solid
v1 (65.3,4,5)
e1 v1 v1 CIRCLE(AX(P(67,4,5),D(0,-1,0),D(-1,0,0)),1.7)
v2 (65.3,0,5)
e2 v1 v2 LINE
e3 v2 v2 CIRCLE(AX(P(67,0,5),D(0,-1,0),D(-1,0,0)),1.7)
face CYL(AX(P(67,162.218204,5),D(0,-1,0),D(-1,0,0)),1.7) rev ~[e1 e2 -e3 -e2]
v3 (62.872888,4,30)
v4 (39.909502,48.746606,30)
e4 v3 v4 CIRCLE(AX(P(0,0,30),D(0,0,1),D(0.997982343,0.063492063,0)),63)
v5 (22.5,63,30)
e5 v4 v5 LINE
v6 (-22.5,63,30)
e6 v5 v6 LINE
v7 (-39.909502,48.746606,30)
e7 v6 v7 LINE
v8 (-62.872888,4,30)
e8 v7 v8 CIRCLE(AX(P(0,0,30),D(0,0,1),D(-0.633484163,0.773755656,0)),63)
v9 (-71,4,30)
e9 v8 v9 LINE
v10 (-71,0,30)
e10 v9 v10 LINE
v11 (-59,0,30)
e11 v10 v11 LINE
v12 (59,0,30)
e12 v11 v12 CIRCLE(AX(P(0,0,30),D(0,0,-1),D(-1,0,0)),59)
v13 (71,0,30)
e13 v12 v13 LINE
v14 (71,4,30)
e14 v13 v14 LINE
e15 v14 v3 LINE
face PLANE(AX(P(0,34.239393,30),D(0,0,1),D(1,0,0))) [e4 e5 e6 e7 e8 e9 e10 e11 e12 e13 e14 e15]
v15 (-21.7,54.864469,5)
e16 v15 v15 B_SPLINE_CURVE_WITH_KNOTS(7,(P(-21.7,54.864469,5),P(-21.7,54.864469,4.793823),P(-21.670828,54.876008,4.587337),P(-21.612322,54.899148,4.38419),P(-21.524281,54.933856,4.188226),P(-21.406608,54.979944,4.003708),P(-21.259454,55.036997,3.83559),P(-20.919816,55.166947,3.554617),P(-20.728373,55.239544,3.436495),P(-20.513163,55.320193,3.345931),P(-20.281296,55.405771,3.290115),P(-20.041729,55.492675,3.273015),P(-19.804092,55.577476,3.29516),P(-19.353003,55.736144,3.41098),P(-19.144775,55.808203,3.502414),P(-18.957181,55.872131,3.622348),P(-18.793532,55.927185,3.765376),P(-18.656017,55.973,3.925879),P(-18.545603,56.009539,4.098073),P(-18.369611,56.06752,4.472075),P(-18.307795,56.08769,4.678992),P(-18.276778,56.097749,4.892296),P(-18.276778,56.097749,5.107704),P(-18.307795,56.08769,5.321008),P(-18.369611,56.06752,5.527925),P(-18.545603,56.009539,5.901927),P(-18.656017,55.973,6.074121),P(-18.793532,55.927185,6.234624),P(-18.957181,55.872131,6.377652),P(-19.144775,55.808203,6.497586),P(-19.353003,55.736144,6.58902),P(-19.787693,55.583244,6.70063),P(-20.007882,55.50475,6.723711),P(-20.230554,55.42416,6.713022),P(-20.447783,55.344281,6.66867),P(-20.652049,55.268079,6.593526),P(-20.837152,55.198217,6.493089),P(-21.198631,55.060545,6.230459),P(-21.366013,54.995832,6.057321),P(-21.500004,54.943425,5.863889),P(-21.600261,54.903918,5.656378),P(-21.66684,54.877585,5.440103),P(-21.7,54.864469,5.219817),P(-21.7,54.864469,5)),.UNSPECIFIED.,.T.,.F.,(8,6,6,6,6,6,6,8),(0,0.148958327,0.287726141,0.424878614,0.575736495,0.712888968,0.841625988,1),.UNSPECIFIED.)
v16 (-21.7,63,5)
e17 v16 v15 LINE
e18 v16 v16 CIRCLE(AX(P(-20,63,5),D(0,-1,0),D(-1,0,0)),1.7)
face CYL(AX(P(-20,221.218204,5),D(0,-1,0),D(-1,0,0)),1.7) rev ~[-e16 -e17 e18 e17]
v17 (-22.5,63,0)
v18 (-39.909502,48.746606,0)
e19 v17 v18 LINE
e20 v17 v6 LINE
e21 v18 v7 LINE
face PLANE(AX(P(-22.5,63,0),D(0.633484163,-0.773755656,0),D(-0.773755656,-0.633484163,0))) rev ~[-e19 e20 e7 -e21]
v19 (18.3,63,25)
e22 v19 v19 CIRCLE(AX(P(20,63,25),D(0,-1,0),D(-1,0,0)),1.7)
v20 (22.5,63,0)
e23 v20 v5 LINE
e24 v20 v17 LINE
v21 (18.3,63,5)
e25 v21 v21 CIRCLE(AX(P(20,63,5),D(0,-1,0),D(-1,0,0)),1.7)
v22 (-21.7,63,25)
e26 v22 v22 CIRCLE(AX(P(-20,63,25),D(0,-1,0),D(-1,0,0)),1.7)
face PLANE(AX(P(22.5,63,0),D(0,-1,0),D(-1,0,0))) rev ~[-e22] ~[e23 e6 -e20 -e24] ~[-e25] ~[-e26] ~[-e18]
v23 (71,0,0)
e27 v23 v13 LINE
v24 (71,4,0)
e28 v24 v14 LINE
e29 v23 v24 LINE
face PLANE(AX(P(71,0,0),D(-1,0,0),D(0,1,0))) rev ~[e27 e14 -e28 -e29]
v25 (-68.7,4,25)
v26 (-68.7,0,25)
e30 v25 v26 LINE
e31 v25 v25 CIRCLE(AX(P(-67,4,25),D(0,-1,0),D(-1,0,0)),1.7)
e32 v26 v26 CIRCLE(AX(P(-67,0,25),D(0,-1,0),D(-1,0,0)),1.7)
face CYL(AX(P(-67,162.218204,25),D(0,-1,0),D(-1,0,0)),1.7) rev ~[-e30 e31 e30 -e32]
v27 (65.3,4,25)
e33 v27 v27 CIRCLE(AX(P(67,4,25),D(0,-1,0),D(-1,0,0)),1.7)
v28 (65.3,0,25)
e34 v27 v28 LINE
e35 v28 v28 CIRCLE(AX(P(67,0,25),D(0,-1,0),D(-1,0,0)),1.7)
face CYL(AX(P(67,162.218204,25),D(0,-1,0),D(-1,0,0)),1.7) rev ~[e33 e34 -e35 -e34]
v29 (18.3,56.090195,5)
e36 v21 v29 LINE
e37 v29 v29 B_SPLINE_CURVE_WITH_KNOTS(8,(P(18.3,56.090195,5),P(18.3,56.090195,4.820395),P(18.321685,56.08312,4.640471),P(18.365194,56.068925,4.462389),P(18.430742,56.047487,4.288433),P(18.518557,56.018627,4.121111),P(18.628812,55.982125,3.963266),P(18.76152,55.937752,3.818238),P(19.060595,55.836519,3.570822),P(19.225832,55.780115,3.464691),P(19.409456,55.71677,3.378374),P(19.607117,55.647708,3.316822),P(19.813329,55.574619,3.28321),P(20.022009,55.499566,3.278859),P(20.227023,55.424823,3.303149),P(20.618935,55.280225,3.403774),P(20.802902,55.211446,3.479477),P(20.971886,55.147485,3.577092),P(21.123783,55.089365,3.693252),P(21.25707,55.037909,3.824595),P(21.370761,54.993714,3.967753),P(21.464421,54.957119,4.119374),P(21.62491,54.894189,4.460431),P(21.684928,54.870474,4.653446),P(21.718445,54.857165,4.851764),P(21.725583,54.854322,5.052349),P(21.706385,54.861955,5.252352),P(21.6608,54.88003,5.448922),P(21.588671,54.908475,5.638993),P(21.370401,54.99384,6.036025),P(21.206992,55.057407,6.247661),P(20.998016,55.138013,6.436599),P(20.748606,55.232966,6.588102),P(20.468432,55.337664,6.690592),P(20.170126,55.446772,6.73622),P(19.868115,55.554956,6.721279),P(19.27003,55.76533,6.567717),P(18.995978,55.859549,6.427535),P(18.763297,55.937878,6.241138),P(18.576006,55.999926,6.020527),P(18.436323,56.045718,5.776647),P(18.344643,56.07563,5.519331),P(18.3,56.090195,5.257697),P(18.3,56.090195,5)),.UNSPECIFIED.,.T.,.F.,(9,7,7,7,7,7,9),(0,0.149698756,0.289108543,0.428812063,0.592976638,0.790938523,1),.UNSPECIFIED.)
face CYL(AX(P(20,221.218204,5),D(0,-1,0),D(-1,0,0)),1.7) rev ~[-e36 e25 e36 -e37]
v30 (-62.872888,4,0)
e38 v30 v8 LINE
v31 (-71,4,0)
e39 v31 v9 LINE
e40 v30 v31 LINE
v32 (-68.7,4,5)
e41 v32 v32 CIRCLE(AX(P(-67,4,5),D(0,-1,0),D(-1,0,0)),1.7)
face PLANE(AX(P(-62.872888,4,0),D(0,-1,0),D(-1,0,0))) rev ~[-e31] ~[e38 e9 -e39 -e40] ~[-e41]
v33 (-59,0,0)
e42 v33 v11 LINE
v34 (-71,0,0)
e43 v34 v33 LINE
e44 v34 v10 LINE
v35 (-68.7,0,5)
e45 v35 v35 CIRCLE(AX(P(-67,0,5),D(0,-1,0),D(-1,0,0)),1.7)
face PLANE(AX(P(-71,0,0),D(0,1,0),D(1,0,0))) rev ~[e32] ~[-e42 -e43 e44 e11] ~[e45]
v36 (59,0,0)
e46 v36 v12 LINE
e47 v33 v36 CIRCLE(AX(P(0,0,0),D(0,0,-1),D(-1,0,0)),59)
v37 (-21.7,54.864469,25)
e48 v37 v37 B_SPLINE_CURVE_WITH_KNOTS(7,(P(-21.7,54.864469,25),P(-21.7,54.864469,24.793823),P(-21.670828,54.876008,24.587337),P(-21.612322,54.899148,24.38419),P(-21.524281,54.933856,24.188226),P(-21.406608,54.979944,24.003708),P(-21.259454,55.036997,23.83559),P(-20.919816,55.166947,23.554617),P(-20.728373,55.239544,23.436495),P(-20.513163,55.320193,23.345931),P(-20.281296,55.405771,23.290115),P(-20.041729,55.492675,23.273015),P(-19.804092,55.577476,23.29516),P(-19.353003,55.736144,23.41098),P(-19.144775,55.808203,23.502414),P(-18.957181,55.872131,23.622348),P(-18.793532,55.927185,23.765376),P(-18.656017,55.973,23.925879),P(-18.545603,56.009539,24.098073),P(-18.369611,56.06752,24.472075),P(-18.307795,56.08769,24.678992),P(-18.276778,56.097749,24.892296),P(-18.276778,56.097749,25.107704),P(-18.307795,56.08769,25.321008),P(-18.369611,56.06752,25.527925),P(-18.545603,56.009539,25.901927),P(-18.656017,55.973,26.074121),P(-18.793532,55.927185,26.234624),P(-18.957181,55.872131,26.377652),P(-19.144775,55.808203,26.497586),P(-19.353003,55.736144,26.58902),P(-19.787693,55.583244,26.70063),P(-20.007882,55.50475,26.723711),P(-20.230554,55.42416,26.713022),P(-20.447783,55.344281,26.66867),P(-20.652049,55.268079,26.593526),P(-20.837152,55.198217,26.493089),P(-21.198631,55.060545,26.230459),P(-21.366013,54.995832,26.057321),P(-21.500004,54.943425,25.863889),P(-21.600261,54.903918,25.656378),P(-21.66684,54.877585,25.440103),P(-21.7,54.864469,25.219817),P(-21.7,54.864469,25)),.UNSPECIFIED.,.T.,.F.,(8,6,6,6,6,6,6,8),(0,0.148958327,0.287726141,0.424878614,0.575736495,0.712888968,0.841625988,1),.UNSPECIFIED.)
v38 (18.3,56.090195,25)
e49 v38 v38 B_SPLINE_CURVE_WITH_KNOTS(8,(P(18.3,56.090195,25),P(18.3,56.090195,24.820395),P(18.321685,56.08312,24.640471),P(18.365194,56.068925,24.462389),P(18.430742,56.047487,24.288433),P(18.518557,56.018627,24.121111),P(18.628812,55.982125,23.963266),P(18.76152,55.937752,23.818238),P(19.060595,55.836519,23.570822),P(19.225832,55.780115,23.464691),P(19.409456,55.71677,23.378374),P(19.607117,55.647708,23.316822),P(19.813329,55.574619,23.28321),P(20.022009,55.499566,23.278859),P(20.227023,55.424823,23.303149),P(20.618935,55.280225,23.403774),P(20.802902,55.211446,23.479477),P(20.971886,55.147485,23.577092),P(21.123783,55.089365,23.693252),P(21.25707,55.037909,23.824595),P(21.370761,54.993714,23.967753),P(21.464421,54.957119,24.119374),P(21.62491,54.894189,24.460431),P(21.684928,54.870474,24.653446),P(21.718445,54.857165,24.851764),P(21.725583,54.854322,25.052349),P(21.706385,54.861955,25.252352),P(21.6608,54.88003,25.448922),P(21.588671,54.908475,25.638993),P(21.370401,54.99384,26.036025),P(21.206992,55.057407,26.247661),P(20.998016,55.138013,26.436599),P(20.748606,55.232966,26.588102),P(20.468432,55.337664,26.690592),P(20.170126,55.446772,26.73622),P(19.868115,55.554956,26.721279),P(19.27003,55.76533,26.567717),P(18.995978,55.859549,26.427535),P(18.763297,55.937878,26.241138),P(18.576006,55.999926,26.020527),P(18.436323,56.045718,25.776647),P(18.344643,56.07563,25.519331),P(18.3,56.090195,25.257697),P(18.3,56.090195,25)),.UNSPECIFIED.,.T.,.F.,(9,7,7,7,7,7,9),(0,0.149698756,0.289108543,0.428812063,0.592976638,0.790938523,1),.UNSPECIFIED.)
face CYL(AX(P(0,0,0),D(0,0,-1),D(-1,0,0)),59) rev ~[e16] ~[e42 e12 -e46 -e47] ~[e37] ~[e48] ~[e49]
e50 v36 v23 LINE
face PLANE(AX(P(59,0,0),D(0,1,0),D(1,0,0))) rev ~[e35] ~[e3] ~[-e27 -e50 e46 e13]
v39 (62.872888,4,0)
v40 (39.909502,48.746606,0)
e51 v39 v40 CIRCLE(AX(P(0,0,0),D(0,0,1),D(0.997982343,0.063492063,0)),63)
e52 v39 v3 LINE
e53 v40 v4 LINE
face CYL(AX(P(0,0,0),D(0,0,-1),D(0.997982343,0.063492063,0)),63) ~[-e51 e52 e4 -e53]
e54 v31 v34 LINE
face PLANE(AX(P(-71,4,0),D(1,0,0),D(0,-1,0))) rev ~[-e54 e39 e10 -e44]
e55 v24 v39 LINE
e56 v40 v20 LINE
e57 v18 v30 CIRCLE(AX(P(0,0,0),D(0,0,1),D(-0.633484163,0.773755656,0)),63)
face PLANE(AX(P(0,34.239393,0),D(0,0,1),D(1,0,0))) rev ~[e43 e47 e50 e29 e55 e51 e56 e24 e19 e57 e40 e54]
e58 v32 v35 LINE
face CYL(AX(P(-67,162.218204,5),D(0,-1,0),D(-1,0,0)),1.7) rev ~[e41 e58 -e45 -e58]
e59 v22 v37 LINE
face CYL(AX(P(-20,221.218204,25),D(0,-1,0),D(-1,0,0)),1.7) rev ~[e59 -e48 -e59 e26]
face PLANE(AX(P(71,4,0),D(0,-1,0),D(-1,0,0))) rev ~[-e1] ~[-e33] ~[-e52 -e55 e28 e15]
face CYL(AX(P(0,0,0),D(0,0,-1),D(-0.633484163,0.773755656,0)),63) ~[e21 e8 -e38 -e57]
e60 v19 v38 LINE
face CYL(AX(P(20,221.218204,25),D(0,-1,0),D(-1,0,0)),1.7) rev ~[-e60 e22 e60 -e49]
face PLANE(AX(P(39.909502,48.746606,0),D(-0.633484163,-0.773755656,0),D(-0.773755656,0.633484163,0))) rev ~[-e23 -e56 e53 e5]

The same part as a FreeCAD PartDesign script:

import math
import FreeCAD as App
import Part
import Sketcher

V = App.Vector

doc = App.newDocument("Part")
body = doc.addObject("PartDesign::Body", "Body")

sketch1 = body.newObject("Sketcher::SketchObject", "Sketch")
sketch1.AttachmentSupport = (doc.getObject("XY_Plane"), [""])
sketch1.MapMode = "FlatFace"
sketch1.addGeometry(Part.LineSegment(V(22.5, 63, 0), V(-22.5, 63, 0)), False)
sketch1.addGeometry(Part.LineSegment(V(-22.5, 63, 0), V(-39.9, 48.7, 0)), False)
sketch1.addGeometry(Part.ArcOfCircle(Part.Circle(V(0, 0, 0), V(0, 0, 1), 63), math.radians(129), math.radians(176)), False)
sketch1.addGeometry(Part.LineSegment(V(-62.9, 4, 0), V(-71, 4, 0)), False)
sketch1.addGeometry(Part.LineSegment(V(-71, 4, 0), V(-71, 0, 0)), False)
sketch1.addGeometry(Part.LineSegment(V(-71, 0, 0), V(-59, 0, 0)), False)
sketch1.addGeometry(Part.ArcOfCircle(Part.Circle(V(0, 0, 0), V(0, 0, 1), 59), math.radians(0), math.radians(180)), False)
sketch1.addGeometry(Part.LineSegment(V(59, 0, 0), V(71, 0, 0)), False)
sketch1.addGeometry(Part.LineSegment(V(71, 0, 0), V(71, 4, 0)), False)
sketch1.addGeometry(Part.LineSegment(V(71, 4, 0), V(62.9, 4, 0)), False)
sketch1.addGeometry(Part.ArcOfCircle(Part.Circle(V(0, 0, 0), V(0, 0, 1), 63), math.radians(4), math.radians(51)), False)
sketch1.addGeometry(Part.LineSegment(V(39.9, 48.7, 0), V(22.5, 63, 0)), False)
sketch1.addConstraint(Sketcher.Constraint("Coincident", 0, 2, 1, 1))
sketch1.addConstraint(Sketcher.Constraint("Tangent", 1, 2, 2, 1))
sketch1.addConstraint(Sketcher.Constraint("Coincident", 2, 2, 3, 1))
sketch1.addConstraint(Sketcher.Constraint("Coincident", 3, 2, 4, 1))
sketch1.addConstraint(Sketcher.Constraint("Coincident", 4, 2, 5, 1))
sketch1.addConstraint(Sketcher.Constraint("Coincident", 5, 2, 6, 2))
sketch1.addConstraint(Sketcher.Constraint("Coincident", 6, 1, 7, 1))
sketch1.addConstraint(Sketcher.Constraint("Coincident", 7, 2, 8, 1))
sketch1.addConstraint(Sketcher.Constraint("Coincident", 8, 2, 9, 1))
sketch1.addConstraint(Sketcher.Constraint("Coincident", 9, 2, 10, 1))
sketch1.addConstraint(Sketcher.Constraint("Tangent", 10, 2, 11, 1))
sketch1.addConstraint(Sketcher.Constraint("Coincident", 11, 2, 0, 1))
sketch1.addConstraint(Sketcher.Constraint("Horizontal", 0))
sketch1.addConstraint(Sketcher.Constraint("Horizontal", 3))
sketch1.addConstraint(Sketcher.Constraint("Vertical", 4))
sketch1.addConstraint(Sketcher.Constraint("Horizontal", 5))
sketch1.addConstraint(Sketcher.Constraint("Horizontal", 7))
sketch1.addConstraint(Sketcher.Constraint("Vertical", 8))
sketch1.addConstraint(Sketcher.Constraint("Horizontal", 9))
sketch1.addConstraint(Sketcher.Constraint("Coincident", 2, 3, -1, 1))
sketch1.addConstraint(Sketcher.Constraint("Coincident", 6, 3, -1, 1))
sketch1.addConstraint(Sketcher.Constraint("Coincident", 10, 3, -1, 1))
sketch1.addConstraint(Sketcher.Constraint("Equal", 2, 10))
sketch1.addConstraint(Sketcher.Constraint("Symmetric", 4, 2, 7, 2, -1, 1))
sketch1.addConstraint(Sketcher.Constraint("PointOnObject", 4, 2, -1))
sketch1.addConstraint(Sketcher.Constraint("Horizontal", 3, 2, 8, 2))
sketch1.addConstraint(Sketcher.Constraint("Horizontal", 1, 2, 10, 2))
sketch1.addConstraint(Sketcher.Constraint("Radius", 2, 63.0))
sketch1.addConstraint(Sketcher.Constraint("Radius", 6, 59.0))
sketch1.addConstraint(Sketcher.Constraint("DistanceX", 0, 2, 0, 1, 45.0))
sketch1.addConstraint(Sketcher.Constraint("DistanceX", 5, 1, 5, 2, 12.0))
sketch1.addConstraint(Sketcher.Constraint("DistanceY", 4, 2, 4, 1, 4.0))
sketch1.addConstraint(Sketcher.Constraint("DistanceY", -1, 1, 0, 2, 63.0))
pad1 = body.newObject("PartDesign::Pad", "Pad")
pad1.Profile = sketch1
pad1.Length = 30

sketch2 = body.newObject("Sketcher::SketchObject", "Sketch001")
sketch2.AttachmentSupport = (doc.getObject("XZ_Plane"), [""])
sketch2.MapMode = "FlatFace"
sketch2.AttachmentOffset = App.Placement(V(0, 0, -4), App.Rotation())
sketch2.addGeometry(Part.Circle(V(-67, 25, 0), V(0, 0, 1), 1.7), False)
sketch2.addGeometry(Part.Circle(V(-67, 5, 0), V(0, 0, 1), 1.7), False)
sketch2.addGeometry(Part.Circle(V(67, 25, 0), V(0, 0, 1), 1.7), False)
sketch2.addGeometry(Part.Circle(V(67, 5, 0), V(0, 0, 1), 1.7), False)
sketch2.addConstraint(Sketcher.Constraint("Equal", 0, 1))
sketch2.addConstraint(Sketcher.Constraint("Equal", 1, 2))
sketch2.addConstraint(Sketcher.Constraint("Equal", 2, 3))
sketch2.addConstraint(Sketcher.Constraint("Symmetric", 0, 3, 2, 3, -2))
sketch2.addConstraint(Sketcher.Constraint("Symmetric", 1, 3, 3, 3, -2))
sketch2.addConstraint(Sketcher.Constraint("Vertical", 0, 3, 1, 3))
sketch2.addConstraint(Sketcher.Constraint("Diameter", 0, 3.4))
sketch2.addConstraint(Sketcher.Constraint("DistanceX", 0, 3, -1, 1, 67.0))
sketch2.addConstraint(Sketcher.Constraint("DistanceY", -1, 1, 0, 3, 25.0))
sketch2.addConstraint(Sketcher.Constraint("DistanceY", -1, 1, 1, 3, 5.0))
doc.recompute()
hole = body.newObject("PartDesign::Hole", "Hole")
hole.Profile = sketch2
hole.ThreadType = "None"
hole.Diameter = 3.4
hole.DepthType = "ThroughAll"
hole.Reversed = True

sketch3 = body.newObject("Sketcher::SketchObject", "Sketch002")
sketch3.AttachmentSupport = (doc.getObject("XZ_Plane"), [""])
sketch3.MapMode = "FlatFace"
sketch3.AttachmentOffset = App.Placement(V(0, 0, -63), App.Rotation())
sketch3.addGeometry(Part.Circle(V(20, 5, 0), V(0, 0, 1), 1.7), False)
sketch3.addGeometry(Part.Circle(V(-20, 5, 0), V(0, 0, 1), 1.7), False)
sketch3.addGeometry(Part.Circle(V(-20, 25, 0), V(0, 0, 1), 1.7), False)
sketch3.addGeometry(Part.Circle(V(20, 25, 0), V(0, 0, 1), 1.7), False)
sketch3.addConstraint(Sketcher.Constraint("Equal", 0, 1))
sketch3.addConstraint(Sketcher.Constraint("Equal", 1, 2))
sketch3.addConstraint(Sketcher.Constraint("Equal", 2, 3))
sketch3.addConstraint(Sketcher.Constraint("Symmetric", 0, 3, 1, 3, -2))
sketch3.addConstraint(Sketcher.Constraint("Symmetric", 2, 3, 3, 3, -2))
sketch3.addConstraint(Sketcher.Constraint("Vertical", 1, 3, 2, 3))
sketch3.addConstraint(Sketcher.Constraint("Diameter", 0, 3.4))
sketch3.addConstraint(Sketcher.Constraint("DistanceX", -1, 1, 0, 3, 20.0))
sketch3.addConstraint(Sketcher.Constraint("DistanceY", -1, 1, 0, 3, 5.0))
sketch3.addConstraint(Sketcher.Constraint("DistanceY", -1, 1, 2, 3, 25.0))
doc.recompute()
hole2 = body.newObject("PartDesign::Hole", "Hole001")
hole2.Profile = sketch3
hole2.ThreadType = "None"
hole2.Diameter = 3.4
hole2.DepthType = "ThroughAll"
hole2.Reversed = True

doc.recompute()
